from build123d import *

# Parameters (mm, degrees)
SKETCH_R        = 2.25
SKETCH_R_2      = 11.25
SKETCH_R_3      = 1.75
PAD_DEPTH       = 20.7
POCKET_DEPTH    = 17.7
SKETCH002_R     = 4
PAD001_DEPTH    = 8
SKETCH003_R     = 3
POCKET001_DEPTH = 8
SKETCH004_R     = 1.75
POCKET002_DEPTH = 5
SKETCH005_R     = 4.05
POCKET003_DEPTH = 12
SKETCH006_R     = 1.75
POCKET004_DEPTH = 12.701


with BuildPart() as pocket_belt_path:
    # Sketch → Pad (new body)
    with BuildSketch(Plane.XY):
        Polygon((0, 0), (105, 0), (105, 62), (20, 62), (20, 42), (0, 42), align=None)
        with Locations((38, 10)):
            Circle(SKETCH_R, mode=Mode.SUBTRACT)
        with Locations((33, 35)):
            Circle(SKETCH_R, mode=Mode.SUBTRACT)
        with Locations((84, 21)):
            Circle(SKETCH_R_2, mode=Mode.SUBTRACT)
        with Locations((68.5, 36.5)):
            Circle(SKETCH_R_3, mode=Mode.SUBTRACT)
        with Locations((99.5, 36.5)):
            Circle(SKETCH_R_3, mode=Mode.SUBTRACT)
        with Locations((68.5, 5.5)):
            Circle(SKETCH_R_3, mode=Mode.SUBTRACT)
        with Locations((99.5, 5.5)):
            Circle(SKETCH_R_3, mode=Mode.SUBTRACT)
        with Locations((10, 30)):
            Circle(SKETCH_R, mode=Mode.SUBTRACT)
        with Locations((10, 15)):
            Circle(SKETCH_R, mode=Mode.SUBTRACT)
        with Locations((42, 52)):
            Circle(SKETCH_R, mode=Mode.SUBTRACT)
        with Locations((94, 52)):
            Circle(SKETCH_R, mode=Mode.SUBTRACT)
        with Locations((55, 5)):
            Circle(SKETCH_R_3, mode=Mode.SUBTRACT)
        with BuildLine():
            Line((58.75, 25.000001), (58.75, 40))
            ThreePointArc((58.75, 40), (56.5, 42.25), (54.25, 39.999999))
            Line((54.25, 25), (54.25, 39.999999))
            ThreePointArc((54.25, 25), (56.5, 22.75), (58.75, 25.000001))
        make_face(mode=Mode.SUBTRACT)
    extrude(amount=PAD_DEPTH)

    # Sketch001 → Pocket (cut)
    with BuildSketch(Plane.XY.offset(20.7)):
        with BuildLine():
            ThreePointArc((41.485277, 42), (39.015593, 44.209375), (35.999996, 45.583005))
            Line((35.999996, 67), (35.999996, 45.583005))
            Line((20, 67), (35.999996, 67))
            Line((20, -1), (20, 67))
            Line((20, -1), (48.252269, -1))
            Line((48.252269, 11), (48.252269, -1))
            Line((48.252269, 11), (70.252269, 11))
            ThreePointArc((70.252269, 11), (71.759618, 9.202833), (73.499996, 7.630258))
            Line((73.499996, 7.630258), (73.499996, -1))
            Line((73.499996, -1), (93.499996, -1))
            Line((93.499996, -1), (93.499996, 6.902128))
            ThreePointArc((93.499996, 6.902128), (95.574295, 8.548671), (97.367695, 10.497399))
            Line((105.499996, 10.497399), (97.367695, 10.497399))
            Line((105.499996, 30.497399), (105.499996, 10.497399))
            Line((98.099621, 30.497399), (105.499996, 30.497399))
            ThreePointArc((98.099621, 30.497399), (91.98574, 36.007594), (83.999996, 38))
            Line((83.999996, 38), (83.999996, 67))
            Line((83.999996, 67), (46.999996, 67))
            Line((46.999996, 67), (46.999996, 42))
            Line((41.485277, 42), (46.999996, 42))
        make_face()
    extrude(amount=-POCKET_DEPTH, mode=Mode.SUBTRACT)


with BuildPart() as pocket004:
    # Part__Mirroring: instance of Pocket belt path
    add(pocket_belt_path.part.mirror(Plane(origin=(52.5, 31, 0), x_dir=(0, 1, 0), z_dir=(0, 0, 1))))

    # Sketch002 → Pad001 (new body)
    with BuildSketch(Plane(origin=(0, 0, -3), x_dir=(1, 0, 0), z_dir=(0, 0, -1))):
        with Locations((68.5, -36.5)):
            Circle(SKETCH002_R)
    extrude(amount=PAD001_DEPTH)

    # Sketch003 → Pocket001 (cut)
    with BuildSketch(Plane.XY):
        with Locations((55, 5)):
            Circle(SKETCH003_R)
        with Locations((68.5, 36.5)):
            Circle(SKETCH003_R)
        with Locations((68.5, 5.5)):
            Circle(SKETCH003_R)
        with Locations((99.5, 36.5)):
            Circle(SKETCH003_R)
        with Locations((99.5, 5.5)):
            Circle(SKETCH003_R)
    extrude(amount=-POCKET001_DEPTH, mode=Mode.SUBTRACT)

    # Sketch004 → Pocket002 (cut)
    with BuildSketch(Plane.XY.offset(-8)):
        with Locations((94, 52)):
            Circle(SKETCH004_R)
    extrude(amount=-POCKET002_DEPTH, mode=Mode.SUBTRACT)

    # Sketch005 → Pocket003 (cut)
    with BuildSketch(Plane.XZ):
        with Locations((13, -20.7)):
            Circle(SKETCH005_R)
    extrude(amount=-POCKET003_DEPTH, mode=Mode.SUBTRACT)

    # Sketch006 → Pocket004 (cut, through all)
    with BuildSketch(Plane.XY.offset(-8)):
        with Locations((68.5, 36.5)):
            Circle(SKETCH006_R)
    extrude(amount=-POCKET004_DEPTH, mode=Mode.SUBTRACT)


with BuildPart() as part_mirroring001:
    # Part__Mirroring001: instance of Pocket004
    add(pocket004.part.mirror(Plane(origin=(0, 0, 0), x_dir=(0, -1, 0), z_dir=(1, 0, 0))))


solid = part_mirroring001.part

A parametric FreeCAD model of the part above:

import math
import FreeCAD as App
import Part
import Sketcher
from FreeCAD import Vector

doc = App.newDocument("Part")
body = doc.addObject("PartDesign::Body", "Body")

sketch1 = doc.addObject("Sketcher::SketchObject", "Sketch")
body.addObject(sketch1)
sketch1.AttachmentSupport = (doc.XY_Plane, [""])
sketch1.MapMode = "FlatFace"
sketch1.addGeometry([
    Part.LineSegment(Vector(0, 0, 0), Vector(105, 0, 0)),
    Part.LineSegment(Vector(105, 0, 0), Vector(105, 62, 0)),
    Part.LineSegment(Vector(105, 62, 0), Vector(20, 62, 0)),
    Part.LineSegment(Vector(20, 62, 0), Vector(20, 42, 0)),
    Part.LineSegment(Vector(20, 42, 0), Vector(0, 42, 0)),
    Part.LineSegment(Vector(0, 42, 0), Vector(0, 0, 0)),
    Part.Circle(Vector(10, 15, 0), Vector(0, 0, 1), 2.2),
    Part.Circle(Vector(38, 10, 0), Vector(0, 0, 1), 2.2),
    Part.Circle(Vector(55, 5, 0), Vector(0, 0, 1), 1.8),
    Part.Circle(Vector(68.5, 5.5, 0), Vector(0, 0, 1), 1.8),
    Part.Circle(Vector(99.5, 5.5, 0), Vector(0, 0, 1), 1.8),
    Part.Circle(Vector(84, 21, 0), Vector(0, 0, 1), 11.2),
    Part.Circle(Vector(10, 30, 0), Vector(0, 0, 1), 2.2),
    Part.Circle(Vector(33, 35, 0), Vector(0, 0, 1), 2.2),
    Part.Circle(Vector(42, 52, 0), Vector(0, 0, 1), 2.2),
    Part.LineSegment(Vector(58.8, 40, 0), Vector(58.8, 25, 0)),
    Part.ArcOfCircle(Part.Circle(Vector(56.5, 25, 0), Vector(0, 0, 1), 2.2), math.radians(180), math.radians(360)),
    Part.LineSegment(Vector(54.2, 25, 0), Vector(54.2, 40, 0)),
    Part.ArcOfCircle(Part.Circle(Vector(56.5, 40, 0), Vector(0, 0, 1), 2.2), math.radians(0), math.radians(180)),
    Part.Circle(Vector(68.5, 36.5, 0), Vector(0, 0, 1), 1.8),
    Part.Circle(Vector(99.5, 36.5, 0), Vector(0, 0, 1), 1.8),
    Part.Circle(Vector(94, 52, 0), Vector(0, 0, 1), 2.2),
], False)
sketch1.addConstraint([
    Sketcher.Constraint("Coincident", 0, 2, 1, 1),
    Sketcher.Constraint("Coincident", 1, 2, 2, 1),
    Sketcher.Constraint("Coincident", 2, 2, 3, 1),
    Sketcher.Constraint("Coincident", 3, 2, 4, 1),
    Sketcher.Constraint("Coincident", 4, 2, 5, 1),
    Sketcher.Constraint("Coincident", 5, 2, 0, 1),
    Sketcher.Constraint("Tangent", 15, 2, 16, 2),
    Sketcher.Constraint("Tangent", 16, 1, 17, 1),
    Sketcher.Constraint("Tangent", 17, 2, 18, 2),
    Sketcher.Constraint("Tangent", 18, 1, 15, 1),
    Sketcher.Constraint("Horizontal", 0),
    Sketcher.Constraint("Vertical", 1),
    Sketcher.Constraint("Horizontal", 2),
    Sketcher.Constraint("Vertical", 3),
    Sketcher.Constraint("Horizontal", 4),
    Sketcher.Constraint("Vertical", 5),
    Sketcher.Constraint("Vertical", 15),
    Sketcher.Constraint("Vertical", 17),
    Sketcher.Constraint("Coincident", 5, 2, -1, 1),
    Sketcher.Constraint("Equal", 6, 7),
    Sketcher.Constraint("Equal", 8, 9),
    Sketcher.Constraint("Equal", 9, 10),
    Sketcher.Constraint("Equal", 7, 12),
    Sketcher.Constraint("Equal", 12, 13),
    Sketcher.Constraint("Equal", 13, 14),
    Sketcher.Constraint("Equal", 14, 16),
    Sketcher.Constraint("Equal", 10, 19),
    Sketcher.Constraint("Equal", 19, 20),
    Sketcher.Constraint("Equal", 18, 21),
    Sketcher.Constraint("Horizontal", 9, 3, 10, 3),
    Sketcher.Constraint("Horizontal", 19, 3, 20, 3),
    Sketcher.Constraint("Horizontal", 14, 3, 21, 3),
    Sketcher.Constraint("Vertical", 6, 3, 12, 3),
    Sketcher.Constraint("Vertical", 9, 3, 19, 3),
    Sketcher.Constraint("Vertical", 10, 3, 20, 3),
    Sketcher.Constraint("Equal", 4, 3),
    Sketcher.Constraint("Diameter", 6, 4.5),
    Sketcher.Constraint("Diameter", 8, 3.5),
    Sketcher.Constraint("Diameter", 11, 22.5),
    Sketcher.Constraint("DistanceX", 0, 1, 0, 2, 105.0),
    Sketcher.Constraint("DistanceX", 2, 2, 2, 1, 85.0),
    Sketcher.Constraint("DistanceY", 1, 1, 1, 2, 62.0),
    Sketcher.Constraint("DistanceY", 15, 2, 15, 1, 14.999999),
    Sketcher.Constraint("DistanceX", -1, 1, 6, 3, 10.0),
    Sketcher.Constraint("DistanceY", -1, 1, 6, 3, 15.0),
    Sketcher.Constraint("DistanceX", -1, 1, 7, 3, 38.0),
    Sketcher.Constraint("DistanceY", -1, 1, 7, 3, 10.0),
    Sketcher.Constraint("DistanceX", -1, 1, 8, 3, 55.0),
    Sketcher.Constraint("DistanceY", -1, 1, 8, 3, 5.0),
    Sketcher.Constraint("DistanceX", -1, 1, 11, 3, 84.0),
    Sketcher.Constraint("DistanceY", -1, 1, 11, 3, 21.0),
    Sketcher.Constraint("DistanceY", -1, 1, 12, 3, 30.0),
    Sketcher.Constraint("DistanceX", -1, 1, 13, 3, 33.0),
    Sketcher.Constraint("DistanceY", -1, 1, 13, 3, 35.0),
    Sketcher.Constraint("DistanceX", -1, 1, 14, 3, 42.0),
    Sketcher.Constraint("DistanceY", -1, 1, 14, 3, 52.0),
    Sketcher.Constraint("DistanceY", -1, 1, 16, 3, 25.0),
    Sketcher.Constraint("DistanceX", -1, 1, 21, 3, 94.0),
    Sketcher.Constraint("DistanceX", 9, 3, 10, 3, 31.0),
    Sketcher.Constraint("DistanceX", 16, 3, 9, 3, 12.0),
    Sketcher.Constraint("DistanceY", 9, 3, 19, 3, 31.0),
    Sketcher.Constraint("DistanceX", -1, 1, 9, 3, 68.5),
    Sketcher.Constraint("DistanceY", -1, 1, 9, 3, 5.5),
])
pad1 = doc.addObject("PartDesign::Pad", "Pad")
body.addObject(pad1)
pad1.Profile = sketch1
pad1.Length = 20.7

sketch2 = doc.addObject("Sketcher::SketchObject", "Sketch001")
body.addObject(sketch2)
sketch2.AttachmentSupport = (doc.XY_Plane, [""])
sketch2.MapMode = "FlatFace"
sketch2.AttachmentOffset = App.Placement(Vector(0, 0, 20.7), App.Rotation())
sketch2.addGeometry([
    Part.ArcOfCircle(Part.Circle(Vector(33, 35, 0), Vector(0, 0, 1), 11), math.radians(40), math.radians(74)),
    Part.LineSegment(Vector(36, 45.6, 0), Vector(36, 67, 0)),
    Part.LineSegment(Vector(36, 67, 0), Vector(20, 67, 0)),
    Part.LineSegment(Vector(20, 67, 0), Vector(20, -1, 0)),
    Part.LineSegment(Vector(20, -1, 0), Vector(48.3, -1, 0)),
    Part.LineSegment(Vector(48.3, -1, 0), Vector(48.3, 11, 0)),
    Part.LineSegment(Vector(48.3, 11, 0), Vector(70.3, 11, 0)),
    Part.ArcOfCircle(Part.Circle(Vector(84, 21, 0), Vector(0, 0, 1), 17), math.radians(-143.97), math.radians(-128.14)),
    Part.LineSegment(Vector(73.5, 7.6, 0), Vector(73.5, -1, 0)),
    Part.LineSegment(Vector(73.5, -1, 0), Vector(93.5, -1, 0)),
    Part.LineSegment(Vector(93.5, -1, 0), Vector(93.5, 6.9, 0)),
    Part.ArcOfCircle(Part.Circle(Vector(84, 21, 0), Vector(0, 0, 1), 17), math.radians(-56.03), math.radians(-38.16)),
    Part.LineSegment(Vector(97.4, 10.5, 0), Vector(105.5, 10.5, 0)),
    Part.LineSegment(Vector(105.5, 10.5, 0), Vector(105.5, 30.5, 0)),
    Part.LineSegment(Vector(105.5, 30.5, 0), Vector(98.1, 30.5, 0)),
    Part.ArcOfCircle(Part.Circle(Vector(84, 21, 0), Vector(0, 0, 1), 17), math.radians(34), math.radians(90)),
    Part.LineSegment(Vector(84, 38, 0), Vector(84, 67, 0)),
    Part.LineSegment(Vector(84, 67, 0), Vector(47, 67, 0)),
    Part.LineSegment(Vector(47, 67, 0), Vector(47, 42, 0)),
    Part.LineSegment(Vector(47, 42, 0), Vector(41.5, 42, 0)),
], False)
sketch2.addConstraint([
    Sketcher.Constraint("Coincident", 0, 2, 1, 1),
    Sketcher.Constraint("Coincident", 1, 2, 2, 1),
    Sketcher.Constraint("Coincident", 2, 2, 3, 1),
    Sketcher.Constraint("Coincident", 3, 2, 4, 1),
    Sketcher.Constraint("Coincident", 4, 2, 5, 1),
    Sketcher.Constraint("Coincident", 5, 2, 6, 1),
    Sketcher.Constraint("Coincident", 6, 2, 7, 1),
    Sketcher.Constraint("Coincident", 7, 2, 8, 1),
    Sketcher.Constraint("Coincident", 8, 2, 9, 1),
    Sketcher.Constraint("Coincident", 9, 2, 10, 1),
    Sketcher.Constraint("Coincident", 10, 2, 11, 1),
    Sketcher.Constraint("Coincident", 11, 2, 12, 1),
    Sketcher.Constraint("Coincident", 12, 2, 13, 1),
    Sketcher.Constraint("Coincident", 13, 2, 14, 1),
    Sketcher.Constraint("Coincident", 14, 2, 15, 1),
    Sketcher.Constraint("Coincident", 15, 2, 16, 1),
    Sketcher.Constraint("Coincident", 16, 2, 17, 1),
    Sketcher.Constraint("Coincident", 17, 2, 18, 1),
    Sketcher.Constraint("Coincident", 18, 2, 19, 1),
    Sketcher.Constraint("Coincident", 19, 2, 0, 1),
    Sketcher.Constraint("Vertical", 1),
    Sketcher.Constraint("Horizontal", 2),
    Sketcher.Constraint("Vertical", 3),
    Sketcher.Constraint("Horizontal", 4),
    Sketcher.Constraint("Vertical", 5),
    Sketcher.Constraint("Horizontal", 6),
    Sketcher.Constraint("Vertical", 8),
    Sketcher.Constraint("Horizontal", 9),
    Sketcher.Constraint("Vertical", 10),
    Sketcher.Constraint("Horizontal", 12),
    Sketcher.Constraint("Vertical", 13),
    Sketcher.Constraint("Horizontal", 14),
    Sketcher.Constraint("Vertical", 16),
    Sketcher.Constraint("Horizontal", 17),
    Sketcher.Constraint("Vertical", 18),
    Sketcher.Constraint("Horizontal", 19),
    Sketcher.Constraint("Coincident", 15, 3, 7, 3),
    Sketcher.Constraint("Horizontal", 4, 2, 8, 2),
    Sketcher.Constraint("Horizontal", 2, 2, 16, 2),
    Sketcher.Constraint("Equal", 9, 13),
    Sketcher.Constraint("Radius", 0, 10.999999),
    Sketcher.Constraint("DistanceX", 6, 1, 6, 2, 22.0),
    Sketcher.Constraint("DistanceX", 9, 1, 9, 2, 20.0),
    Sketcher.Constraint("DistanceX", 17, 2, 17, 1, 37.0),
    Sketcher.Constraint("DistanceY", 3, 2, 3, 1, 68.0),
    Sketcher.Constraint("DistanceY", 5, 1, 5, 2, 12.0),
    Sketcher.Constraint("DistanceY", 16, 1, 16, 2, 29.0),
    Sketcher.Constraint("DistanceY", 18, 2, 18, 1, 25.0),
    Sketcher.Constraint("DistanceY", -1, 1, 0, 3, 35.000001),
    Sketcher.Constraint("DistanceY", -1, 1, 1, 2, 67.0),
    Sketcher.Constraint("DistanceX", -1, 1, 2, 2, 20.0),
    Sketcher.Constraint("DistanceX", 0, 3, 0, 2, 3.0),
    Sketcher.Constraint("DistanceX", 10, 2, 12, 2, 12.0),
    Sketcher.Constraint("DistanceX", 1, 2, 17, 2, 11.0),
    Sketcher.Constraint("DistanceX", 15, 2, 13, 2, 21.5),
    Sketcher.Constraint("Radius", 7, 16.99999),
    Sketcher.Constraint("Radius", 11, 17.00002),
    Sketcher.Constraint("DistanceX", 12, 1, 12, 2, 8.132301),
    Sketcher.Constraint("Radius", 15, 17.000005),
    Sketcher.Constraint("DistanceX", 4, 1, 4, 2, 28.252269),
    Sketcher.Constraint("DistanceY", 8, 2, 8, 1, 8.630258),
    Sketcher.Constraint("DistanceY", 10, 1, 10, 2, 7.902128),
    Sketcher.Constraint("DistanceY", -1, 1, 11, 2, 10.497399),
])
pocket1 = doc.addObject("PartDesign::Pocket", "Pocket")
body.addObject(pocket1)
pocket1.Profile = sketch2
pocket1.Length = 17.7
body2 = doc.addObject("PartDesign::Body", "Body001")
doc.recompute()

mirroring = doc.addObject("Part::Mirroring", "Mirroring")
mirroring.Source = body
mirroring.Base = Vector(52.5, 31, 0)
mirroring.Normal = Vector(0, 0, 1)
body2.BaseFeature = mirroring
doc.recompute()

sketch3 = doc.addObject("Sketcher::SketchObject", "Sketch002")
body2.addObject(sketch3)
sketch3.AttachmentSupport = (doc.getObject("XY_Plane001"), [""])
sketch3.MapMode = "FlatFace"
sketch3.AttachmentOffset = App.Placement(Vector(0, 0, -3), App.Rotation())
sketch3.addGeometry(Part.Circle(Vector(68.5, 36.5, 0), Vector(0, 0, 1), 4), False)
sketch3.addConstraint([
    Sketcher.Constraint("Diameter", 0, 8.0),
    Sketcher.Constraint("DistanceX", -1, 1, 0, 3, 68.5),
    Sketcher.Constraint("DistanceY", -1, 1, 0, 3, 36.5),
])
pad2 = doc.addObject("PartDesign::Pad", "Pad001")
body2.addObject(pad2)
pad2.Profile = sketch3
pad2.Length = 8
pad2.Reversed = True

sketch4 = doc.addObject("Sketcher::SketchObject", "Sketch003")
body2.addObject(sketch4)
sketch4.AttachmentSupport = (doc.getObject("XY_Plane001"), [""])
sketch4.MapMode = "FlatFace"
sketch4.addGeometry([
    Part.Circle(Vector(55, 5, 0), Vector(0, 0, 1), 3),
    Part.Circle(Vector(68.5, 36.5, 0), Vector(0, 0, 1), 3),
    Part.Circle(Vector(68.5, 5.5, 0), Vector(0, 0, 1), 3),
    Part.Circle(Vector(99.5, 36.5, 0), Vector(0, 0, 1), 3),
    Part.Circle(Vector(99.5, 5.5, 0), Vector(0, 0, 1), 3),
], False)
sketch4.addConstraint([
    Sketcher.Constraint("Equal", 0, 1),
    Sketcher.Constraint("Equal", 1, 2),
    Sketcher.Constraint("Equal", 2, 3),
    Sketcher.Constraint("Equal", 3, 4),
    Sketcher.Constraint("Horizontal", 1, 3, 3, 3),
    Sketcher.Constraint("Horizontal", 2, 3, 4, 3),
    Sketcher.Constraint("Vertical", 1, 3, 2, 3),
    Sketcher.Constraint("Vertical", 3, 3, 4, 3),
    Sketcher.Constraint("Diameter", 0, 6.0),
    Sketcher.Constraint("DistanceX", -1, 1, 0, 3, 55.0),
    Sketcher.Constraint("DistanceY", -1, 1, 0, 3, 5.0),
    Sketcher.Constraint("DistanceY", 2, 3, 1, 3, 31.0),
    Sketcher.Constraint("DistanceX", 1, 3, 3, 3, 31.0),
    Sketcher.Constraint("DistanceX", -1, 1, 1, 3, 68.5),
    Sketcher.Constraint("DistanceY", -1, 1, 1, 3, 36.5),
])
pocket2 = doc.addObject("PartDesign::Pocket", "Pocket001")
body2.addObject(pocket2)
pocket2.Profile = sketch4
pocket2.Length = 8

sketch5 = doc.addObject("Sketcher::SketchObject", "Sketch004")
body2.addObject(sketch5)
sketch5.AttachmentSupport = (doc.getObject("XY_Plane001"), [""])
sketch5.MapMode = "FlatFace"
sketch5.AttachmentOffset = App.Placement(Vector(0, 0, -8), App.Rotation())
sketch5.addGeometry(Part.Circle(Vector(94, 52, 0), Vector(0, 0, 1), 1.8), False)
sketch5.addConstraint([
    Sketcher.Constraint("Diameter", 0, 3.5),
    Sketcher.Constraint("DistanceX", -1, 1, 0, 3, 94.0),
    Sketcher.Constraint("DistanceY", -1, 1, 0, 3, 52.0),
])
pocket3 = doc.addObject("PartDesign::Pocket", "Pocket002")
body2.addObject(pocket3)
pocket3.Profile = sketch5
pocket3.Length = 5

sketch6 = doc.addObject("Sketcher::SketchObject", "Sketch005")
body2.addObject(sketch6)
sketch6.AttachmentSupport = (doc.getObject("XZ_Plane001"), [""])
sketch6.MapMode = "FlatFace"
sketch6.addGeometry(Part.Circle(Vector(13, -20.7, 0), Vector(0, 0, 1), 4), False)
sketch6.addConstraint([
    Sketcher.Constraint("Diameter", 0, 8.1),
    Sketcher.Constraint("DistanceX", -1, 1, 0, 3, 13.0),
    Sketcher.Constraint("DistanceY", 0, 3, -1, 1, 20.7),
])
pocket4 = doc.addObject("PartDesign::Pocket", "Pocket003")
body2.addObject(pocket4)
pocket4.Profile = sketch6
pocket4.Length = 12

sketch7 = doc.addObject("Sketcher::SketchObject", "Sketch006")
body2.addObject(sketch7)
sketch7.AttachmentSupport = (doc.getObject("XY_Plane001"), [""])
sketch7.MapMode = "FlatFace"
sketch7.AttachmentOffset = App.Placement(Vector(0, 0, -8), App.Rotation())
sketch7.addGeometry(Part.Circle(Vector(68.5, 36.5, 0), Vector(0, 0, 1), 1.8), False)
sketch7.addConstraint([
    Sketcher.Constraint("Diameter", 0, 3.5),
    Sketcher.Constraint("DistanceX", -1, 1, 0, 3, 68.5),
    Sketcher.Constraint("DistanceY", -1, 1, 0, 3, 36.5),
])
pocket5 = doc.addObject("PartDesign::Pocket", "Pocket004")
body2.addObject(pocket5)
pocket5.Profile = sketch7
pocket5.Type = "ThroughAll"
body3 = doc.addObject("PartDesign::Body", "Body002")
doc.recompute()

mirroring2 = doc.addObject("Part::Mirroring", "Mirroring001")
mirroring2.Source = body2
mirroring2.Base = Vector(0, 0, 0)
mirroring2.Normal = Vector(1, 0, 0)
body3.BaseFeature = mirroring2
doc.recompute()
body.Visibility = False
body2.Visibility = False
mirroring.Visibility = False
mirroring2.Visibility = False

doc.recompute()
